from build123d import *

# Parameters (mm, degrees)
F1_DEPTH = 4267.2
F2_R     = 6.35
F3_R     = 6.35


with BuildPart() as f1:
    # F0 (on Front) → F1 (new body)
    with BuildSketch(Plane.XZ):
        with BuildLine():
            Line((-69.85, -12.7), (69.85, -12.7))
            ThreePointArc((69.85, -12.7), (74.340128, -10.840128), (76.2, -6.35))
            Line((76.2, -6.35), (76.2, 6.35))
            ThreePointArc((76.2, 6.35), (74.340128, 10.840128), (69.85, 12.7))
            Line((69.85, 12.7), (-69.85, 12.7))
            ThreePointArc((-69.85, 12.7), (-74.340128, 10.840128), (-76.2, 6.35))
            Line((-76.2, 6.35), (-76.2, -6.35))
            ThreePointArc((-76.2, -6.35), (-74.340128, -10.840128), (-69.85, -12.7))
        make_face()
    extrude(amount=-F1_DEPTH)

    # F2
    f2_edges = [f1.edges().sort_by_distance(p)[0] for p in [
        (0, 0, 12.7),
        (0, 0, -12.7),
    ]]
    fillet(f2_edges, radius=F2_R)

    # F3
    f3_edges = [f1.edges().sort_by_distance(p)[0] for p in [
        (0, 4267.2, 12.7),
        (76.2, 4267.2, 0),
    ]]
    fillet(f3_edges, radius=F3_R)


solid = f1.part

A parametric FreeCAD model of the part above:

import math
import FreeCAD as App
import Part
import Sketcher
from FreeCAD import Vector
Q = App.Units.Quantity


def edges_at(feature, points):
    """Names of the edges that pass closest to the given points."""
    edges = feature.Shape.Edges
    near = lambda p: min(range(len(edges)), key=lambda i: edges[i].distToShape(Part.Vertex(*p))[0])
    return sorted({f"Edge{near(p) + 1}" for p in points})

doc = App.newDocument("Part")
params = doc.addObject("Spreadsheet::Sheet", "Params")
for row, (alias, value) in enumerate([
    ("sketch1_radius", "0.25 in"),
    ("sketch1_width", "5.5 in"),
    ("sketch1_height", "0.5 in"),
    ("pad1_length", "168 in"),
    ("fillet_radius", "0.25 in"),
    ("fillet2_radius", "0.25 in"),
], start=1):
    params.set(f"A{row}", alias)
    params.set(f"B{row}", "=" + value)
    params.setAlias(f"B{row}", alias)

body = doc.addObject("PartDesign::Body", "Body")

# Sketch on XZ plane
sketch1 = doc.addObject("Sketcher::SketchObject", "Sketch")
body.addObject(sketch1)
sketch1.AttachmentSupport = (doc.XZ_Plane, [""])
sketch1.MapMode = "FlatFace"
sketch1.addGeometry(Part.LineSegment(Vector(-69.85, -12.7, 0), Vector(69.85, -12.7, 0)), False)
sketch1.addGeometry(Part.ArcOfCircle(Part.Circle(Vector(69.85, -6.35, 0), Vector(0, 0, 1), 6.35), math.radians(-89.999998), math.radians(-0.000002)), False)
sketch1.addGeometry(Part.LineSegment(Vector(76.2, -6.35, 0), Vector(76.2, 6.35, 0)), False)
sketch1.addGeometry(Part.ArcOfCircle(Part.Circle(Vector(69.85, 6.35, 0), Vector(0, 0, 1), 6.35), math.radians(0.000002), math.radians(89.999998)), False)
sketch1.addGeometry(Part.LineSegment(Vector(69.85, 12.7, 0), Vector(-69.85, 12.7, 0)), False)
sketch1.addGeometry(Part.ArcOfCircle(Part.Circle(Vector(-69.85, 6.35, 0), Vector(0, 0, 1), 6.35), math.radians(90.000002), math.radians(179.999998)), False)
sketch1.addGeometry(Part.LineSegment(Vector(-76.2, 6.35, 0), Vector(-76.2, -6.35, 0)), False)
sketch1.addGeometry(Part.ArcOfCircle(Part.Circle(Vector(-69.85, -6.35, 0), Vector(0, 0, 1), 6.35), math.radians(-179.999998), math.radians(-90.000002)), False)
sketch1.addConstraint(Sketcher.Constraint("Tangent", 0, 2, 1, 1))
sketch1.addConstraint(Sketcher.Constraint("Tangent", 1, 2, 2, 1))
sketch1.addConstraint(Sketcher.Constraint("Tangent", 2, 2, 3, 1))
sketch1.addConstraint(Sketcher.Constraint("Tangent", 3, 2, 4, 1))
sketch1.addConstraint(Sketcher.Constraint("Tangent", 4, 2, 5, 1))
sketch1.addConstraint(Sketcher.Constraint("Tangent", 5, 2, 6, 1))
sketch1.addConstraint(Sketcher.Constraint("Tangent", 6, 2, 7, 1))
sketch1.addConstraint(Sketcher.Constraint("Tangent", 7, 2, 0, 1))
sketch1.addConstraint(Sketcher.Constraint("Horizontal", 0))
sketch1.addConstraint(Sketcher.Constraint("Vertical", 2))
sketch1.addConstraint(Sketcher.Constraint("Horizontal", 4))
sketch1.addConstraint(Sketcher.Constraint("Vertical", 6))
sketch1.addConstraint(Sketcher.Constraint("Equal", 1, 3))
sketch1.addConstraint(Sketcher.Constraint("Equal", 3, 5))
sketch1.addConstraint(Sketcher.Constraint("Equal", 5, 7))
sketch1.addConstraint(Sketcher.Constraint("Symmetric", 1, 3, 5, 3, -1, 1))
sketch1.addConstraint(Sketcher.Constraint("Radius", 1, Q("0.25 in")))
sketch1.addConstraint(Sketcher.Constraint("DistanceX", 0, 1, 0, 2, Q("5.5 in")))
sketch1.addConstraint(Sketcher.Constraint("DistanceY", 2, 1, 2, 2, Q("0.5 in")))
sketch1.setExpression("Constraints[16]", "Params.sketch1_radius")
sketch1.setExpression("Constraints[17]", "Params.sketch1_width")
sketch1.setExpression("Constraints[18]", "Params.sketch1_height")
pad1 = doc.addObject("PartDesign::Pad", "Pad")
body.addObject(pad1)
pad1.Profile = sketch1
pad1.setExpression("Length", "Params.pad1_length")
pad1.Reversed = True
doc.recompute()

fillet = doc.addObject("PartDesign::Fillet", "Fillet")
body.addObject(fillet)
fillet.Base = (pad1, edges_at(pad1, [(0, 0, 12.7), (0, 0, -12.7)]))
fillet.setExpression("Radius", "Params.fillet_radius")
doc.recompute()

fillet2 = doc.addObject("PartDesign::Fillet", "Fillet001")
body.addObject(fillet2)
fillet2.Base = (fillet, edges_at(fillet, [(0, 4267.2, 12.7), (76.2, 4267.2, 0)]))
fillet2.setExpression("Radius", "Params.fillet2_radius")

doc.recompute()
